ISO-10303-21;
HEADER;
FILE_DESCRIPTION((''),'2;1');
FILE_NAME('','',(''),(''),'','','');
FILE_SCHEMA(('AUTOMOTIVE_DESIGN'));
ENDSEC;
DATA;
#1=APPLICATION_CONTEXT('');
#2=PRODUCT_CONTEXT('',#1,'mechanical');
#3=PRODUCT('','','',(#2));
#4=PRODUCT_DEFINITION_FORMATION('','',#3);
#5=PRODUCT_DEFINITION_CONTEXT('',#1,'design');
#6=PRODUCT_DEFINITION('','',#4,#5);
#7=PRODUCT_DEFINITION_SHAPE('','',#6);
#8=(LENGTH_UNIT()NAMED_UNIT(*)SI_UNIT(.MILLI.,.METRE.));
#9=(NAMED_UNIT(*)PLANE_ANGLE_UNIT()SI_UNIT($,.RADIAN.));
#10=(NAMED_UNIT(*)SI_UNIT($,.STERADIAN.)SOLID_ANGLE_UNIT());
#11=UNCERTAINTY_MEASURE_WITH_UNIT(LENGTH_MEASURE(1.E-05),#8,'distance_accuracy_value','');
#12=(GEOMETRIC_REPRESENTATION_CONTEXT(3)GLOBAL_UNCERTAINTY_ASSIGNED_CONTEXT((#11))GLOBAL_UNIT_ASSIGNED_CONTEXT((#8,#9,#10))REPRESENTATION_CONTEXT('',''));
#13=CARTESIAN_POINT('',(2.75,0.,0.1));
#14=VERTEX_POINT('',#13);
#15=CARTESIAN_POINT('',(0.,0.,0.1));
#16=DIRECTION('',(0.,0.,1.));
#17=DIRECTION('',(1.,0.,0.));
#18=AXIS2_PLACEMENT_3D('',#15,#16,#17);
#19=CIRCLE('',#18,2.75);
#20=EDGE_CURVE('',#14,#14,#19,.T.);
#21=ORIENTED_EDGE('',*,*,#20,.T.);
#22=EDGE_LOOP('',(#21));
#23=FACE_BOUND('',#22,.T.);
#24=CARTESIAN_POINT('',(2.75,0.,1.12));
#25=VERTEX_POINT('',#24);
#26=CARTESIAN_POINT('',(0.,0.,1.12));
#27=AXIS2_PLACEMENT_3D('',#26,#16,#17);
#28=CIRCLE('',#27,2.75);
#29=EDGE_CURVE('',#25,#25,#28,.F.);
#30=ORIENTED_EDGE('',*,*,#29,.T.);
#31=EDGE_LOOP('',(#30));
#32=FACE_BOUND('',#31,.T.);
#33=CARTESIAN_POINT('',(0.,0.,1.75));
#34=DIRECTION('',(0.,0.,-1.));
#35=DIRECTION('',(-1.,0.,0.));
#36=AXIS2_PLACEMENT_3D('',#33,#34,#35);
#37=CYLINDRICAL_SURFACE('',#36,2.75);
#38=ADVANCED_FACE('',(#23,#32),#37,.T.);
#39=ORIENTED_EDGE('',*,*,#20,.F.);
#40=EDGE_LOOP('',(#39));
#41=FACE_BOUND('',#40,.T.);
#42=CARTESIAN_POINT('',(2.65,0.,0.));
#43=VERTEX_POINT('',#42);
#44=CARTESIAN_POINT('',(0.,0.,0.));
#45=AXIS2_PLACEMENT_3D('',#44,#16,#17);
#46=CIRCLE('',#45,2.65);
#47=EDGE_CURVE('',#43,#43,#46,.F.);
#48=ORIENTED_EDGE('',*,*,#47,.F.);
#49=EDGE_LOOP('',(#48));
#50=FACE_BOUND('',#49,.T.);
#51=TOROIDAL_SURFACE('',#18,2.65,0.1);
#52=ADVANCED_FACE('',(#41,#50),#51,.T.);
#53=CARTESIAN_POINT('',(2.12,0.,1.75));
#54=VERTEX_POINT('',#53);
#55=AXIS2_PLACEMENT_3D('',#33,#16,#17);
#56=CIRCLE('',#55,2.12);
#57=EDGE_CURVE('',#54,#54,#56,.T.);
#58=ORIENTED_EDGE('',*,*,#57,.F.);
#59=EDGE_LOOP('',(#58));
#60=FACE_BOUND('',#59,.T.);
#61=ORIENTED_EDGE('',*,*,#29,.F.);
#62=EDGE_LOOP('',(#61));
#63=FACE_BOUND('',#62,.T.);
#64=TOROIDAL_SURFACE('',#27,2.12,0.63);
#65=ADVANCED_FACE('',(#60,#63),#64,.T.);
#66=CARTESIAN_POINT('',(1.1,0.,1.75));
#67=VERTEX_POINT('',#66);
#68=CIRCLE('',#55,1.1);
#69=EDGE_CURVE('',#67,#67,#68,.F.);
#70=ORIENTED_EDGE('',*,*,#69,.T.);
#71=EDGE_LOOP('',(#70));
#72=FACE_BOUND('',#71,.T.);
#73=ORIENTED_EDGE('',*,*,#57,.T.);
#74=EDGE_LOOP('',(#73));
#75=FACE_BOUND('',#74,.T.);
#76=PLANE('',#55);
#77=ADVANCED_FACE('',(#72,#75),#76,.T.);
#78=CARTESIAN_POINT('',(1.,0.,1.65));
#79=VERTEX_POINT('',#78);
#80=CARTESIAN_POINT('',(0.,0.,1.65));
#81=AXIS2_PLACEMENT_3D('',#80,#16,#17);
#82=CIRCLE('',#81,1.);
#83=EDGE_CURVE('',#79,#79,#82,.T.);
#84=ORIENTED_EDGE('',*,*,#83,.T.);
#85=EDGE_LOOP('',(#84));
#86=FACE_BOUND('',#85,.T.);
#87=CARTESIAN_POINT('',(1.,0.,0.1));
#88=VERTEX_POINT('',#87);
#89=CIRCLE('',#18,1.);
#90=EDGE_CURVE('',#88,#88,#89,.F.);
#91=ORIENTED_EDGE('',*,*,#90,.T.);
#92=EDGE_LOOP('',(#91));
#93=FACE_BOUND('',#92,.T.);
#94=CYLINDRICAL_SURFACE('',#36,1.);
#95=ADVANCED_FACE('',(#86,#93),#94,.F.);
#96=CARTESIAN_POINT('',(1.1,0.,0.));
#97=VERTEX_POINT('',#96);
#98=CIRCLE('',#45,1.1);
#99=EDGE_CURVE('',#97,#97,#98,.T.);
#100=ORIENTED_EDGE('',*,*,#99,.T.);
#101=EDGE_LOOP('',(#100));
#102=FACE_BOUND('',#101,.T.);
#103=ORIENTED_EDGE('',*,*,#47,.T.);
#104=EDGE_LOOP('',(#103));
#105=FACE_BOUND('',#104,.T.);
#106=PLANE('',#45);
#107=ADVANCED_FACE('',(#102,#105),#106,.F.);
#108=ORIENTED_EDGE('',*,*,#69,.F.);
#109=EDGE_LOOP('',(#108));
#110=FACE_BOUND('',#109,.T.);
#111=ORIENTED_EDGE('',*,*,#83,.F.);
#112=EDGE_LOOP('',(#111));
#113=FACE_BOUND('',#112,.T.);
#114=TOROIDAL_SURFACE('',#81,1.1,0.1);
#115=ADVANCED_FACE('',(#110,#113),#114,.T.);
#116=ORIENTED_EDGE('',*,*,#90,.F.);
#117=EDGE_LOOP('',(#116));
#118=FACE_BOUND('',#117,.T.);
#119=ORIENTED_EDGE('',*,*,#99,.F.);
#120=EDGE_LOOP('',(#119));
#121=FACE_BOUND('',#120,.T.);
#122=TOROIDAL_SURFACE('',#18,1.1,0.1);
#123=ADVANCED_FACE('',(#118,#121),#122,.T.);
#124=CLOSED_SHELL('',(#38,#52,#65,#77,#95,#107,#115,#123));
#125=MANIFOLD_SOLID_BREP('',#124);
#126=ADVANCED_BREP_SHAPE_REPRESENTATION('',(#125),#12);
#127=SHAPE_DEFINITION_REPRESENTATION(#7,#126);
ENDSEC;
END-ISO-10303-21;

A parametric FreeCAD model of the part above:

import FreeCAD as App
import Part
import Sketcher


def edges_at(feature, points):
    """Names of the edges that pass closest to the given points."""
    edges = feature.Shape.Edges
    near = lambda p: min(range(len(edges)), key=lambda i: edges[i].distToShape(Part.Vertex(*p))[0])
    return sorted({f"Edge{near(p) + 1}" for p in points})

doc = App.newDocument("Part")
body = doc.addObject("PartDesign::Body", "Body")

# Sketch on XY plane
sketch1 = body.newObject("Sketcher::SketchObject", "Sketch")
sketch1.AttachmentSupport = (doc.getObject("XY_Plane"), [""])
sketch1.MapMode = "FlatFace"
sketch1.addGeometry(Part.Circle(App.Vector(0, 0, 0), App.Vector(0, 0, 1), 2.8), False)
sketch1.addGeometry(Part.Circle(App.Vector(0, 0, 0), App.Vector(0, 0, 1), 1), False)
sketch1.addConstraint(Sketcher.Constraint("Coincident", 0, 3, -1, 1))
sketch1.addConstraint(Sketcher.Constraint("Coincident", 1, 3, -1, 1))
sketch1.addConstraint(Sketcher.Constraint("Diameter", 1, 2.0))
sketch1.addConstraint(Sketcher.Constraint("Diameter", 0, 5.5))
pad1 = body.newObject("PartDesign::Pad", "Pad")
pad1.Profile = sketch1
pad1.Length = 1.75
doc.recompute()

fillet = body.newObject("PartDesign::Fillet", "Fillet")
fillet.Base = (pad1, edges_at(pad1, [(-2.75, 0, 0), (-1, 0, 0), (-1, 0, 1.75)]))
fillet.Radius = 0.1
doc.recompute()

fillet2 = body.newObject("PartDesign::Fillet", "Fillet001")
fillet2.Base = (fillet, edges_at(fillet, [(-2.75, 0, 1.75)]))
fillet2.Radius = 0.63

doc.recompute()
